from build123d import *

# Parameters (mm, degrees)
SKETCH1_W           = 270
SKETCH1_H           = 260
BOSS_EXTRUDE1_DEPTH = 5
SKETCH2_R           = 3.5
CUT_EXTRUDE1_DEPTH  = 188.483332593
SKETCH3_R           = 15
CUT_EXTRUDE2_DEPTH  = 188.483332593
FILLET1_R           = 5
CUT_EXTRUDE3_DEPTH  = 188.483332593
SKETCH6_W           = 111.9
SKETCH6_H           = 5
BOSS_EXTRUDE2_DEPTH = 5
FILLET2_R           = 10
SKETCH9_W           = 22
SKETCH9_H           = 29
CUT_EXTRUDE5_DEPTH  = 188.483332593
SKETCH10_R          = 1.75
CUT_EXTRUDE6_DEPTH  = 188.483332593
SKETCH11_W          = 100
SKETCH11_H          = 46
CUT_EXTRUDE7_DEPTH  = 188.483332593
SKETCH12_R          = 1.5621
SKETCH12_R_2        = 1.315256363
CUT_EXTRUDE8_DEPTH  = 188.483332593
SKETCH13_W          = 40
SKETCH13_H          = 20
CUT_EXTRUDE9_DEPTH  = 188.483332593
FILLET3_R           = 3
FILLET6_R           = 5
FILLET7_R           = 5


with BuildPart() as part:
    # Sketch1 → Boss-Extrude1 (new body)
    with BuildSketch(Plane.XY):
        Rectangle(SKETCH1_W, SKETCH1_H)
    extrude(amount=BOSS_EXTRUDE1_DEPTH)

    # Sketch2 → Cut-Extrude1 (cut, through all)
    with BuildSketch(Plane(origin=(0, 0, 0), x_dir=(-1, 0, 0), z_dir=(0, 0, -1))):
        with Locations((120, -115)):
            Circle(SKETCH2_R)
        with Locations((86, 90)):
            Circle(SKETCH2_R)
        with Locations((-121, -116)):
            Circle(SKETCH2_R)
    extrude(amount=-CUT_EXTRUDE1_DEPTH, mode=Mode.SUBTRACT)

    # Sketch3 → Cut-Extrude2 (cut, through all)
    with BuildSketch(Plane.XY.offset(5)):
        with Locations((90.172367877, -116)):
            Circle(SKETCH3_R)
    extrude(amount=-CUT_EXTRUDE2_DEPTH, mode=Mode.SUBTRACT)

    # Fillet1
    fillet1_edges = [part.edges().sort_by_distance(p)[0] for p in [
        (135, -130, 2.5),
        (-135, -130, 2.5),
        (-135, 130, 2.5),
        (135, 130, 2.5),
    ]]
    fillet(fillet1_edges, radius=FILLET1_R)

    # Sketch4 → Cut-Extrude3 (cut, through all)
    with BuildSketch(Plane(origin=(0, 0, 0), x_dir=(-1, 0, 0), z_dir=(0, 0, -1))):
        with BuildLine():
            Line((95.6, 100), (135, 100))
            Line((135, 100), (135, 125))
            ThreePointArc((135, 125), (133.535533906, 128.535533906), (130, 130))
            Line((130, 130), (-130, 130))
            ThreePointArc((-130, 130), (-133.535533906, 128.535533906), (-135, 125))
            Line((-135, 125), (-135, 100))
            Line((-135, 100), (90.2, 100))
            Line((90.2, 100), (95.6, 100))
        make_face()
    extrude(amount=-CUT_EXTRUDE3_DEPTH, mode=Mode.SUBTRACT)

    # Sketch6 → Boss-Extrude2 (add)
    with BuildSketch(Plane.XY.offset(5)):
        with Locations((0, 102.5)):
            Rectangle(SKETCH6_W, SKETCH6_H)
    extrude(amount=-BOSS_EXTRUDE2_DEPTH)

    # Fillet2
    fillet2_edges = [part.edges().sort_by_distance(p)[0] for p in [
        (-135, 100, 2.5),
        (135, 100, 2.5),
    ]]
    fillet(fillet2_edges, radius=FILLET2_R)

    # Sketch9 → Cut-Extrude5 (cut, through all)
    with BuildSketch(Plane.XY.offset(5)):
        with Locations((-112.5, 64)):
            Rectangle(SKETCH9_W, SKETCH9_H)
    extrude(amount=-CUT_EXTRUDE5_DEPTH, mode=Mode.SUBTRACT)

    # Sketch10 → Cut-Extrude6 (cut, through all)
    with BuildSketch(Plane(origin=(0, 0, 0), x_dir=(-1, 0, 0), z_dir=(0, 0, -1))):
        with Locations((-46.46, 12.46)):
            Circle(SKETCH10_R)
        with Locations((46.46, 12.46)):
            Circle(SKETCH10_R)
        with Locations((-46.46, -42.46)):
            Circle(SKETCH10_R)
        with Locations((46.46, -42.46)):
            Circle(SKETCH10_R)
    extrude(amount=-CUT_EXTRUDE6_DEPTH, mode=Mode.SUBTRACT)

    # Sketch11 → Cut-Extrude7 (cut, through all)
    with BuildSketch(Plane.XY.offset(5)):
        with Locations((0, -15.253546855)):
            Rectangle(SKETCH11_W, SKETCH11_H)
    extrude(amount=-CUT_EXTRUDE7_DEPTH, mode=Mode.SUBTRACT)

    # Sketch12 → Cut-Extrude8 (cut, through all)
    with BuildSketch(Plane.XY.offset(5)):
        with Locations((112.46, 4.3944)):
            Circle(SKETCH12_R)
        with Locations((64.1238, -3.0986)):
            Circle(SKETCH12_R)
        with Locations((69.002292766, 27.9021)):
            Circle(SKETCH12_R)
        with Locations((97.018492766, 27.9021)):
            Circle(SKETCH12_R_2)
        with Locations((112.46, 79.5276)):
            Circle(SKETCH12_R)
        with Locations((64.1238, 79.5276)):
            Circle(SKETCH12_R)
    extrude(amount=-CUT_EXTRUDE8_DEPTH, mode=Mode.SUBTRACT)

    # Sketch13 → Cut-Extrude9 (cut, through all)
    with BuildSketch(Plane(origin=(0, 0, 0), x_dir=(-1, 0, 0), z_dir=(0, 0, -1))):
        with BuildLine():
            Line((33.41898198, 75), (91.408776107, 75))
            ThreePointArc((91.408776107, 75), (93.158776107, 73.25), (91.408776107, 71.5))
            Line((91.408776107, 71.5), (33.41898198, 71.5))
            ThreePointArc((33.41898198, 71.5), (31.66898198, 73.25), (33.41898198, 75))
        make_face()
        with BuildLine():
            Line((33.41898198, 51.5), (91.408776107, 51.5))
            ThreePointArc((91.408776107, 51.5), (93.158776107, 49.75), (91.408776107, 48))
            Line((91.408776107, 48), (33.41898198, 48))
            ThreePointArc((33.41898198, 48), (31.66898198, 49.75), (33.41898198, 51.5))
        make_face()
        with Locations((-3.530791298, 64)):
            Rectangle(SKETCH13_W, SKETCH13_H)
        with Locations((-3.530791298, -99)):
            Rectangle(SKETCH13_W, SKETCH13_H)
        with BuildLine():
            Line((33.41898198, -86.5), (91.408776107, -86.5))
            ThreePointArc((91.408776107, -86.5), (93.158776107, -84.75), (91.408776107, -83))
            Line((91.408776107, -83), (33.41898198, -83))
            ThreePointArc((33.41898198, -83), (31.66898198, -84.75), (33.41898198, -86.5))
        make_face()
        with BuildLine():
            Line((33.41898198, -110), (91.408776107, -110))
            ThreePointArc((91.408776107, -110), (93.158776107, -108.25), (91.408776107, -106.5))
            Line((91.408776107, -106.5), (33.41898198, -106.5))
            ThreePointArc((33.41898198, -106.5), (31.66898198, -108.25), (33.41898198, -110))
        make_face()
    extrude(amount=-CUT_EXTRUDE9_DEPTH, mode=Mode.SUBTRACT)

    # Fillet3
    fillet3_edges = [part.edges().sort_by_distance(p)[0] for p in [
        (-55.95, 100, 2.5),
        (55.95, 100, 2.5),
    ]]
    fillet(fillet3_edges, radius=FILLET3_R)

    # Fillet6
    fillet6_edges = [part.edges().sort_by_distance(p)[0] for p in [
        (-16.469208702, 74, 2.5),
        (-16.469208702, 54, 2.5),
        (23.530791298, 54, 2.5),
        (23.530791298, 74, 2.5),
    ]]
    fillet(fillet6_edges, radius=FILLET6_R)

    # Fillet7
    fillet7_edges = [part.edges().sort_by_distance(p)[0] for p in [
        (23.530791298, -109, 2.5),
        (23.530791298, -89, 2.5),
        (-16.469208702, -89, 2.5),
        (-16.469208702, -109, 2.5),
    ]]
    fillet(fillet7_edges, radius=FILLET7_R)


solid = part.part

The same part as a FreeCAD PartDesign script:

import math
import FreeCAD as App
import Part
import Sketcher

V = App.Vector


def edges_at(feature, points):
    """Names of the edges that pass closest to the given points."""
    edges = feature.Shape.Edges
    near = lambda p: min(range(len(edges)), key=lambda i: edges[i].distToShape(Part.Vertex(*p))[0])
    return sorted({f"Edge{near(p) + 1}" for p in points})

doc = App.newDocument("Part")
body = doc.addObject("PartDesign::Body", "Body")

# Sketch on XY plane
sketch1 = body.newObject("Sketcher::SketchObject", "Sketch")
sketch1.AttachmentSupport = (doc.getObject("XY_Plane"), [""])
sketch1.MapMode = "FlatFace"
sketch1.addGeometry(Part.LineSegment(V(-135, 130, 0), V(-135, -130, 0)), False)
sketch1.addGeometry(Part.LineSegment(V(-135, -130, 0), V(135, -130, 0)), False)
sketch1.addGeometry(Part.LineSegment(V(135, -130, 0), V(135, 130, 0)), False)
sketch1.addGeometry(Part.LineSegment(V(135, 130, 0), V(-135, 130, 0)), False)
sketch1.addConstraint(Sketcher.Constraint("Coincident", 0, 2, 1, 1))
sketch1.addConstraint(Sketcher.Constraint("Coincident", 1, 2, 2, 1))
sketch1.addConstraint(Sketcher.Constraint("Coincident", 2, 2, 3, 1))
sketch1.addConstraint(Sketcher.Constraint("Coincident", 3, 2, 0, 1))
sketch1.addConstraint(Sketcher.Constraint("Vertical", 0))
sketch1.addConstraint(Sketcher.Constraint("Horizontal", 1))
sketch1.addConstraint(Sketcher.Constraint("Vertical", 2))
sketch1.addConstraint(Sketcher.Constraint("Horizontal", 3))
sketch1.addConstraint(Sketcher.Constraint("Symmetric", 0, 2, 2, 2, -1, 1))
sketch1.addConstraint(Sketcher.Constraint("DistanceX", 1, 1, 1, 2, 270.0))
sketch1.addConstraint(Sketcher.Constraint("DistanceY", 0, 2, 0, 1, 260.0))
pad1 = body.newObject("PartDesign::Pad", "Pad")
pad1.Profile = sketch1
pad1.Length = 5

# Sketch on XY plane
sketch2 = body.newObject("Sketcher::SketchObject", "Sketch001")
sketch2.AttachmentSupport = (doc.getObject("XY_Plane"), [""])
sketch2.MapMode = "FlatFace"
sketch2.addGeometry(Part.Circle(V(-120, -115, 0), V(0, 0, 1), 3.5), False)
sketch2.addGeometry(Part.Circle(V(-86, 90, 0), V(0, 0, 1), 3.5), False)
sketch2.addGeometry(Part.Circle(V(121, -116, 0), V(0, 0, 1), 3.5), False)
sketch2.addConstraint(Sketcher.Constraint("Equal", 0, 1))
sketch2.addConstraint(Sketcher.Constraint("Equal", 1, 2))
sketch2.addConstraint(Sketcher.Constraint("Diameter", 0, 7.0))
sketch2.addConstraint(Sketcher.Constraint("DistanceX", 0, 3, -1, 1, 120.0))
sketch2.addConstraint(Sketcher.Constraint("DistanceY", 0, 3, -1, 1, 115.0))
sketch2.addConstraint(Sketcher.Constraint("DistanceX", 1, 3, -1, 1, 86.0))
sketch2.addConstraint(Sketcher.Constraint("DistanceY", -1, 1, 1, 3, 90.0))
sketch2.addConstraint(Sketcher.Constraint("DistanceX", -1, 1, 2, 3, 121.0))
sketch2.addConstraint(Sketcher.Constraint("DistanceY", 2, 3, -1, 1, 116.0))
pocket1 = body.newObject("PartDesign::Pocket", "Pocket")
pocket1.Profile = sketch2
pocket1.Type = "ThroughAll"
pocket1.Reversed = True

# Sketch on XY plane
sketch3 = body.newObject("Sketcher::SketchObject", "Sketch002")
sketch3.AttachmentSupport = (doc.getObject("XY_Plane"), [""])
sketch3.MapMode = "FlatFace"
sketch3.AttachmentOffset = App.Placement(V(0, 0, 5), App.Rotation())
sketch3.addGeometry(Part.Circle(V(90, -116, 0), V(0, 0, 1), 15), False)
sketch3.addConstraint(Sketcher.Constraint("Diameter", 0, 30.0))
sketch3.addConstraint(Sketcher.Constraint("DistanceY", 0, 3, -1, 1, 116.0))
sketch3.addConstraint(Sketcher.Constraint("DistanceX", -1, 1, 0, 3, 90.172368))
pocket2 = body.newObject("PartDesign::Pocket", "Pocket001")
pocket2.Profile = sketch3
pocket2.Type = "ThroughAll"
doc.recompute()

fillet = body.newObject("PartDesign::Fillet", "Fillet")
fillet.Base = (pocket2, edges_at(pocket2, [
    (135, -130, 2.5),
    (-135, -130, 2.5),
    (-135, 130, 2.5),
    (135, 130, 2.5),
]))
fillet.Radius = 5

# Sketch on XY plane
sketch4 = body.newObject("Sketcher::SketchObject", "Sketch003")
sketch4.AttachmentSupport = (doc.getObject("XY_Plane"), [""])
sketch4.MapMode = "FlatFace"
sketch4.addGeometry(Part.LineSegment(V(-135, 100, 0), V(-135, 125, 0)), False)
sketch4.addGeometry(Part.ArcOfCircle(Part.Circle(V(-130, 125, 0), V(0, 0, 1), 5), math.radians(90), math.radians(180)), False)
sketch4.addGeometry(Part.LineSegment(V(-130, 130, 0), V(130, 130, 0)), False)
sketch4.addGeometry(Part.ArcOfCircle(Part.Circle(V(130, 125, 0), V(0, 0, 1), 5), math.radians(0), math.radians(90)), False)
sketch4.addGeometry(Part.LineSegment(V(135, 125, 0), V(135, 100, 0)), False)
sketch4.addGeometry(Part.LineSegment(V(135, 100, 0), V(-135, 100, 0)), False)
sketch4.addConstraint(Sketcher.Constraint("Tangent", 0, 2, 1, 2))
sketch4.addConstraint(Sketcher.Constraint("Tangent", 1, 1, 2, 1))
sketch4.addConstraint(Sketcher.Constraint("Tangent", 2, 2, 3, 2))
sketch4.addConstraint(Sketcher.Constraint("Tangent", 3, 1, 4, 1))
sketch4.addConstraint(Sketcher.Constraint("Coincident", 4, 2, 5, 1))
sketch4.addConstraint(Sketcher.Constraint("Coincident", 5, 2, 0, 1))
sketch4.addConstraint(Sketcher.Constraint("Vertical", 0))
sketch4.addConstraint(Sketcher.Constraint("Horizontal", 2))
sketch4.addConstraint(Sketcher.Constraint("Vertical", 4))
sketch4.addConstraint(Sketcher.Constraint("Horizontal", 5))
sketch4.addConstraint(Sketcher.Constraint("Equal", 1, 3))
sketch4.addConstraint(Sketcher.Constraint("Radius", 1, 5.0))
sketch4.addConstraint(Sketcher.Constraint("DistanceX", 2, 1, 2, 2, 260.0))
sketch4.addConstraint(Sketcher.Constraint("DistanceY", 0, 1, 0, 2, 25.0))
sketch4.addConstraint(Sketcher.Constraint("DistanceX", 1, 3, -1, 1, 130.0))
sketch4.addConstraint(Sketcher.Constraint("DistanceY", -1, 1, 1, 3, 125.0))
pocket3 = body.newObject("PartDesign::Pocket", "Pocket002")
pocket3.Profile = sketch4
pocket3.Type = "ThroughAll"
pocket3.Reversed = True

# Sketch on XY plane
sketch5 = body.newObject("Sketcher::SketchObject", "Sketch004")
sketch5.AttachmentSupport = (doc.getObject("XY_Plane"), [""])
sketch5.MapMode = "FlatFace"
sketch5.AttachmentOffset = App.Placement(V(0, 0, 5), App.Rotation())
sketch5.addGeometry(Part.LineSegment(V(-56, 105, 0), V(-56, 100, 0)), False)
sketch5.addGeometry(Part.LineSegment(V(-56, 100, 0), V(56, 100, 0)), False)
sketch5.addGeometry(Part.LineSegment(V(56, 100, 0), V(56, 105, 0)), False)
sketch5.addGeometry(Part.LineSegment(V(56, 105, 0), V(-56, 105, 0)), False)
sketch5.addConstraint(Sketcher.Constraint("Coincident", 0, 2, 1, 1))
sketch5.addConstraint(Sketcher.Constraint("Coincident", 1, 2, 2, 1))
sketch5.addConstraint(Sketcher.Constraint("Coincident", 2, 2, 3, 1))
sketch5.addConstraint(Sketcher.Constraint("Coincident", 3, 2, 0, 1))
sketch5.addConstraint(Sketcher.Constraint("Vertical", 0))
sketch5.addConstraint(Sketcher.Constraint("Horizontal", 1))
sketch5.addConstraint(Sketcher.Constraint("Vertical", 2))
sketch5.addConstraint(Sketcher.Constraint("Horizontal", 3))
sketch5.addConstraint(Sketcher.Constraint("DistanceY", 0, 2, 0, 1, 5.0))
sketch5.addConstraint(Sketcher.Constraint("DistanceX", 1, 1, 1, 2, 111.9))
sketch5.addConstraint(Sketcher.Constraint("DistanceY", -1, 1, 0, 2, 100.0))
sketch5.addConstraint(Sketcher.Constraint("DistanceX", 0, 2, -1, 1, 55.95))
pad2 = body.newObject("PartDesign::Pad", "Pad001")
pad2.Profile = sketch5
pad2.Length = 5
pad2.Reversed = True
doc.recompute()

fillet2 = body.newObject("PartDesign::Fillet", "Fillet001")
fillet2.Base = (pad2, edges_at(pad2, [(-135, 100, 2.5), (135, 100, 2.5)]))
fillet2.Radius = 10

# Sketch on XY plane
sketch6 = body.newObject("Sketcher::SketchObject", "Sketch005")
sketch6.AttachmentSupport = (doc.getObject("XY_Plane"), [""])
sketch6.MapMode = "FlatFace"
sketch6.AttachmentOffset = App.Placement(V(0, 0, 5), App.Rotation())
sketch6.addGeometry(Part.LineSegment(V(-124, 78, 0), V(-124, 50, 0)), False)
sketch6.addGeometry(Part.LineSegment(V(-124, 50, 0), V(-102, 50, 0)), False)
sketch6.addGeometry(Part.LineSegment(V(-102, 50, 0), V(-102, 78, 0)), False)
sketch6.addGeometry(Part.LineSegment(V(-102, 78, 0), V(-124, 78, 0)), False)
sketch6.addConstraint(Sketcher.Constraint("Coincident", 0, 2, 1, 1))
sketch6.addConstraint(Sketcher.Constraint("Coincident", 1, 2, 2, 1))
sketch6.addConstraint(Sketcher.Constraint("Coincident", 2, 2, 3, 1))
sketch6.addConstraint(Sketcher.Constraint("Coincident", 3, 2, 0, 1))
sketch6.addConstraint(Sketcher.Constraint("Vertical", 0))
sketch6.addConstraint(Sketcher.Constraint("Horizontal", 1))
sketch6.addConstraint(Sketcher.Constraint("Vertical", 2))
sketch6.addConstraint(Sketcher.Constraint("Horizontal", 3))
sketch6.addConstraint(Sketcher.Constraint("DistanceX", 1, 1, 1, 2, 22.0))
sketch6.addConstraint(Sketcher.Constraint("DistanceY", 0, 2, 0, 1, 29.0))
sketch6.addConstraint(Sketcher.Constraint("DistanceX", 0, 2, -1, 1, 123.5))
sketch6.addConstraint(Sketcher.Constraint("DistanceY", -1, 1, 0, 2, 49.5))
pocket4 = body.newObject("PartDesign::Pocket", "Pocket003")
pocket4.Profile = sketch6
pocket4.Type = "ThroughAll"

# Sketch on XY plane
sketch7 = body.newObject("Sketcher::SketchObject", "Sketch006")
sketch7.AttachmentSupport = (doc.getObject("XY_Plane"), [""])
sketch7.MapMode = "FlatFace"
sketch7.addGeometry(Part.Circle(V(46.5, 12.5, 0), V(0, 0, 1), 1.8), False)
sketch7.addGeometry(Part.Circle(V(-46.5, 12.5, 0), V(0, 0, 1), 1.8), False)
sketch7.addGeometry(Part.Circle(V(46.5, -42.5, 0), V(0, 0, 1), 1.8), False)
sketch7.addGeometry(Part.Circle(V(-46.5, -42.5, 0), V(0, 0, 1), 1.8), False)
sketch7.addConstraint(Sketcher.Constraint("Equal", 0, 1))
sketch7.addConstraint(Sketcher.Constraint("Equal", 1, 2))
sketch7.addConstraint(Sketcher.Constraint("Equal", 2, 3))
sketch7.addConstraint(Sketcher.Constraint("Symmetric", 0, 3, 1, 3, -2))
sketch7.addConstraint(Sketcher.Constraint("Symmetric", 2, 3, 3, 3, -2))
sketch7.addConstraint(Sketcher.Constraint("Vertical", 0, 3, 2, 3))
sketch7.addConstraint(Sketcher.Constraint("Diameter", 0, 3.5))
sketch7.addConstraint(Sketcher.Constraint("DistanceX", -1, 1, 0, 3, 46.46))
sketch7.addConstraint(Sketcher.Constraint("DistanceY", -1, 1, 0, 3, 12.46))
sketch7.addConstraint(Sketcher.Constraint("DistanceY", 2, 3, -1, 1, 42.46))
pocket5 = body.newObject("PartDesign::Pocket", "Pocket004")
pocket5.Profile = sketch7
pocket5.Type = "ThroughAll"
pocket5.Reversed = True

# Sketch on XY plane
sketch8 = body.newObject("Sketcher::SketchObject", "Sketch007")
sketch8.AttachmentSupport = (doc.getObject("XY_Plane"), [""])
sketch8.MapMode = "FlatFace"
sketch8.AttachmentOffset = App.Placement(V(0, 0, 5), App.Rotation())
sketch8.addGeometry(Part.LineSegment(V(-50, 8, 0), V(-50, -38, 0)), False)
sketch8.addGeometry(Part.LineSegment(V(-50, -38, 0), V(50, -38, 0)), False)
sketch8.addGeometry(Part.LineSegment(V(50, -38, 0), V(50, 8, 0)), False)
sketch8.addGeometry(Part.LineSegment(V(50, 8, 0), V(-50, 8, 0)), False)
sketch8.addConstraint(Sketcher.Constraint("Coincident", 0, 2, 1, 1))
sketch8.addConstraint(Sketcher.Constraint("Coincident", 1, 2, 2, 1))
sketch8.addConstraint(Sketcher.Constraint("Coincident", 2, 2, 3, 1))
sketch8.addConstraint(Sketcher.Constraint("Coincident", 3, 2, 0, 1))
sketch8.addConstraint(Sketcher.Constraint("Vertical", 0))
sketch8.addConstraint(Sketcher.Constraint("Horizontal", 1))
sketch8.addConstraint(Sketcher.Constraint("Vertical", 2))
sketch8.addConstraint(Sketcher.Constraint("Horizontal", 3))
sketch8.addConstraint(Sketcher.Constraint("DistanceX", 1, 1, 1, 2, 100.0))
sketch8.addConstraint(Sketcher.Constraint("DistanceY", 0, 2, 0, 1, 46.0))
sketch8.addConstraint(Sketcher.Constraint("DistanceX", 0, 2, -1, 1, 50.0))
sketch8.addConstraint(Sketcher.Constraint("DistanceY", 0, 2, -1, 1, 38.253547))
pocket6 = body.newObject("PartDesign::Pocket", "Pocket005")
pocket6.Profile = sketch8
pocket6.Type = "ThroughAll"

# Sketch on XY plane
sketch9 = body.newObject("Sketcher::SketchObject", "Sketch008")
sketch9.AttachmentSupport = (doc.getObject("XY_Plane"), [""])
sketch9.MapMode = "FlatFace"
sketch9.AttachmentOffset = App.Placement(V(0, 0, 5), App.Rotation())
sketch9.addGeometry(Part.Circle(V(112.5, 4.4, 0), V(0, 0, 1), 1.6), False)
sketch9.addGeometry(Part.Circle(V(64.1, -3.1, 0), V(0, 0, 1), 1.6), False)
sketch9.addGeometry(Part.Circle(V(69, 27.9, 0), V(0, 0, 1), 1.6), False)
sketch9.addGeometry(Part.Circle(V(97, 27.9, 0), V(0, 0, 1), 1.3), False)
sketch9.addGeometry(Part.Circle(V(112.5, 79.5, 0), V(0, 0, 1), 1.6), False)
sketch9.addGeometry(Part.Circle(V(64.1, 79.5, 0), V(0, 0, 1), 1.6), False)
sketch9.addConstraint(Sketcher.Constraint("Equal", 0, 1))
sketch9.addConstraint(Sketcher.Constraint("Equal", 1, 2))
sketch9.addConstraint(Sketcher.Constraint("Equal", 2, 4))
sketch9.addConstraint(Sketcher.Constraint("Equal", 4, 5))
sketch9.addConstraint(Sketcher.Constraint("Horizontal", 2, 3, 3, 3))
sketch9.addConstraint(Sketcher.Constraint("Horizontal", 4, 3, 5, 3))
sketch9.addConstraint(Sketcher.Constraint("Vertical", 0, 3, 4, 3))
sketch9.addConstraint(Sketcher.Constraint("Vertical", 1, 3, 5, 3))
sketch9.addConstraint(Sketcher.Constraint("Diameter", 0, 3.1242))
sketch9.addConstraint(Sketcher.Constraint("DistanceX", -1, 1, 0, 3, 112.46))
sketch9.addConstraint(Sketcher.Constraint("Diameter", 3, 2.630513))
sketch9.addConstraint(Sketcher.Constraint("DistanceY", 1, 3, 0, 3, 7.493))
sketch9.addConstraint(Sketcher.Constraint("DistanceY", -1, 1, 0, 3, 4.3944))
sketch9.addConstraint(Sketcher.Constraint("DistanceX", -1, 1, 1, 3, 64.1238))
sketch9.addConstraint(Sketcher.Constraint("DistanceY", -1, 1, 2, 3, 27.9021))
sketch9.addConstraint(Sketcher.Constraint("DistanceY", -1, 1, 4, 3, 79.5276))
sketch9.addConstraint(Sketcher.Constraint("DistanceX", 2, 3, 3, 3, 28.0162))
sketch9.addConstraint(Sketcher.Constraint("DistanceX", -1, 1, 2, 3, 69.002293))
pocket7 = body.newObject("PartDesign::Pocket", "Pocket006")
pocket7.Profile = sketch9
pocket7.Type = "ThroughAll"

# Sketch on XY plane
sketch10 = body.newObject("Sketcher::SketchObject", "Sketch009")
sketch10.AttachmentSupport = (doc.getObject("XY_Plane"), [""])
sketch10.MapMode = "FlatFace"
sketch10.addGeometry(Part.LineSegment(V(-91.4, 75, 0), V(-33.4, 75, 0)), False)
sketch10.addGeometry(Part.ArcOfCircle(Part.Circle(V(-33.4, 73.2, 0), V(0, 0, 1), 1.8), math.radians(-90), math.radians(90)), False)
sketch10.addGeometry(Part.LineSegment(V(-33.4, 71.5, 0), V(-91.4, 71.5, 0)), False)
sketch10.addGeometry(Part.ArcOfCircle(Part.Circle(V(-91.4, 73.2, 0), V(0, 0, 1), 1.8), math.radians(90), math.radians(270)), False)
sketch10.addGeometry(Part.LineSegment(V(-91.4, 51.5, 0), V(-33.4, 51.5, 0)), False)
sketch10.addGeometry(Part.ArcOfCircle(Part.Circle(V(-33.4, 49.8, 0), V(0, 0, 1), 1.8), math.radians(-90), math.radians(90)), False)
sketch10.addGeometry(Part.LineSegment(V(-33.4, 48, 0), V(-91.4, 48, 0)), False)
sketch10.addGeometry(Part.ArcOfCircle(Part.Circle(V(-91.4, 49.8, 0), V(0, 0, 1), 1.8), math.radians(90), math.radians(270)), False)
sketch10.addGeometry(Part.LineSegment(V(23.5, 74, 0), V(23.5, 54, 0)), False)
sketch10.addGeometry(Part.LineSegment(V(23.5, 54, 0), V(-16.5, 54, 0)), False)
sketch10.addGeometry(Part.LineSegment(V(-16.5, 54, 0), V(-16.5, 74, 0)), False)
sketch10.addGeometry(Part.LineSegment(V(-16.5, 74, 0), V(23.5, 74, 0)), False)
sketch10.addGeometry(Part.LineSegment(V(23.5, -89, 0), V(23.5, -109, 0)), False)
sketch10.addGeometry(Part.LineSegment(V(23.5, -109, 0), V(-16.5, -109, 0)), False)
sketch10.addGeometry(Part.LineSegment(V(-16.5, -109, 0), V(-16.5, -89, 0)), False)
sketch10.addGeometry(Part.LineSegment(V(-16.5, -89, 0), V(23.5, -89, 0)), False)
sketch10.addGeometry(Part.LineSegment(V(-33.4, -86.5, 0), V(-91.4, -86.5, 0)), False)
sketch10.addGeometry(Part.ArcOfCircle(Part.Circle(V(-91.4, -84.8, 0), V(0, 0, 1), 1.8), math.radians(90), math.radians(270)), False)
sketch10.addGeometry(Part.LineSegment(V(-91.4, -83, 0), V(-33.4, -83, 0)), False)
sketch10.addGeometry(Part.ArcOfCircle(Part.Circle(V(-33.4, -84.8, 0), V(0, 0, 1), 1.8), math.radians(-90), math.radians(90)), False)
sketch10.addGeometry(Part.LineSegment(V(-33.4, -110, 0), V(-91.4, -110, 0)), False)
sketch10.addGeometry(Part.ArcOfCircle(Part.Circle(V(-91.4, -108.2, 0), V(0, 0, 1), 1.8), math.radians(90), math.radians(270)), False)
sketch10.addGeometry(Part.LineSegment(V(-91.4, -106.5, 0), V(-33.4, -106.5, 0)), False)
sketch10.addGeometry(Part.ArcOfCircle(Part.Circle(V(-33.4, -108.2, 0), V(0, 0, 1), 1.8), math.radians(-90), math.radians(90)), False)
sketch10.addConstraint(Sketcher.Constraint("Tangent", 0, 2, 1, 2))
sketch10.addConstraint(Sketcher.Constraint("Tangent", 1, 1, 2, 1))
sketch10.addConstraint(Sketcher.Constraint("Tangent", 2, 2, 3, 2))
sketch10.addConstraint(Sketcher.Constraint("Tangent", 3, 1, 0, 1))
sketch10.addConstraint(Sketcher.Constraint("Tangent", 4, 2, 5, 2))
sketch10.addConstraint(Sketcher.Constraint("Tangent", 5, 1, 6, 1))
sketch10.addConstraint(Sketcher.Constraint("Tangent", 6, 2, 7, 2))
sketch10.addConstraint(Sketcher.Constraint("Tangent", 7, 1, 4, 1))
sketch10.addConstraint(Sketcher.Constraint("Coincident", 8, 2, 9, 1))
sketch10.addConstraint(Sketcher.Constraint("Coincident", 9, 2, 10, 1))
sketch10.addConstraint(Sketcher.Constraint("Coincident", 10, 2, 11, 1))
sketch10.addConstraint(Sketcher.Constraint("Coincident", 11, 2, 8, 1))
sketch10.addConstraint(Sketcher.Constraint("Coincident", 12, 2, 13, 1))
sketch10.addConstraint(Sketcher.Constraint("Coincident", 13, 2, 14, 1))
sketch10.addConstraint(Sketcher.Constraint("Coincident", 14, 2, 15, 1))
sketch10.addConstraint(Sketcher.Constraint("Coincident", 15, 2, 12, 1))
sketch10.addConstraint(Sketcher.Constraint("Tangent", 16, 2, 17, 2))
sketch10.addConstraint(Sketcher.Constraint("Tangent", 17, 1, 18, 1))
sketch10.addConstraint(Sketcher.Constraint("Tangent", 18, 2, 19, 2))
sketch10.addConstraint(Sketcher.Constraint("Tangent", 19, 1, 16, 1))
sketch10.addConstraint(Sketcher.Constraint("Tangent", 20, 2, 21, 2))
sketch10.addConstraint(Sketcher.Constraint("Tangent", 21, 1, 22, 1))
sketch10.addConstraint(Sketcher.Constraint("Tangent", 22, 2, 23, 2))
sketch10.addConstraint(Sketcher.Constraint("Tangent", 23, 1, 20, 1))
sketch10.addConstraint(Sketcher.Constraint("Horizontal", 0))
sketch10.addConstraint(Sketcher.Constraint("Horizontal", 2))
sketch10.addConstraint(Sketcher.Constraint("Horizontal", 4))
sketch10.addConstraint(Sketcher.Constraint("Horizontal", 6))
sketch10.addConstraint(Sketcher.Constraint("Vertical", 8))
sketch10.addConstraint(Sketcher.Constraint("Horizontal", 9))
sketch10.addConstraint(Sketcher.Constraint("Vertical", 10))
sketch10.addConstraint(Sketcher.Constraint("Horizontal", 11))
sketch10.addConstraint(Sketcher.Constraint("Vertical", 12))
sketch10.addConstraint(Sketcher.Constraint("Horizontal", 13))
sketch10.addConstraint(Sketcher.Constraint("Vertical", 14))
sketch10.addConstraint(Sketcher.Constraint("Horizontal", 15))
sketch10.addConstraint(Sketcher.Constraint("Horizontal", 16))
sketch10.addConstraint(Sketcher.Constraint("Horizontal", 18))
sketch10.addConstraint(Sketcher.Constraint("Horizontal", 20))
sketch10.addConstraint(Sketcher.Constraint("Horizontal", 22))
sketch10.addConstraint(Sketcher.Constraint("Equal", 3, 5))
sketch10.addConstraint(Sketcher.Constraint("Equal", 7, 17))
sketch10.addConstraint(Sketcher.Constraint("Equal", 19, 21))
sketch10.addConstraint(Sketcher.Constraint("Vertical", 1, 3, 5, 3))
sketch10.addConstraint(Sketcher.Constraint("Vertical", 3, 3, 7, 3))
sketch10.addConstraint(Sketcher.Constraint("Vertical", 7, 3, 17, 3))
sketch10.addConstraint(Sketcher.Constraint("Vertical", 5, 3, 19, 3))
sketch10.addConstraint(Sketcher.Constraint("Vertical", 17, 3, 21, 3))
sketch10.addConstraint(Sketcher.Constraint("Vertical", 19, 3, 23, 3))
sketch10.addConstraint(Sketcher.Constraint("Vertical", 11, 2, 12, 2))
sketch10.addConstraint(Sketcher.Constraint("Vertical", 10, 2, 13, 2))
sketch10.addConstraint(Sketcher.Constraint("Equal", 10, 12))
sketch10.addConstraint(Sketcher.Constraint("DistanceX", 9, 2, 9, 1, 40.0))
sketch10.addConstraint(Sketcher.Constraint("DistanceY", 8, 2, 8, 1, 20.0))
sketch10.addConstraint(Sketcher.Constraint("Radius", 1, 1.75))
sketch10.addConstraint(Sketcher.Constraint("DistanceY", -1, 1, 0, 2, 75.0))
sketch10.addConstraint(Sketcher.Constraint("DistanceY", -1, 1, 5, 1, 48.0))
sketch10.addConstraint(Sketcher.Constraint("DistanceY", -1, 1, 8, 2, 54.0))
sketch10.addConstraint(Sketcher.Constraint("DistanceY", 12, 2, -1, 1, 109.0))
sketch10.addConstraint(Sketcher.Constraint("DistanceY", 17, 1, -1, 1, 83.0))
sketch10.addConstraint(Sketcher.Constraint("DistanceY", 20, 2, -1, 1, 110.0))
sketch10.addConstraint(Sketcher.Constraint("DistanceX", 0, 1, 0, 2, 57.989794))
sketch10.addConstraint(Sketcher.Constraint("DistanceX", 1, 3, -1, 1, 33.418982))
sketch10.addConstraint(Sketcher.Constraint("DistanceX", -1, 1, 8, 2, 23.530791))
pocket8 = body.newObject("PartDesign::Pocket", "Pocket007")
pocket8.Profile = sketch10
pocket8.Type = "ThroughAll"
pocket8.Reversed = True
doc.recompute()

fillet3 = body.newObject("PartDesign::Fillet", "Fillet002")
fillet3.Base = (pocket8, edges_at(pocket8, [(-55.95, 100, 2.5), (55.95, 100, 2.5)]))
fillet3.Radius = 3
doc.recompute()

fillet4 = body.newObject("PartDesign::Fillet", "Fillet003")
fillet4.Base = (fillet3, edges_at(fillet3, [
    (-16.469, 74, 2.5),
    (-16.469, 54, 2.5),
    (23.531, 54, 2.5),
    (23.531, 74, 2.5),
]))
fillet4.Radius = 5
doc.recompute()

fillet5 = body.newObject("PartDesign::Fillet", "Fillet004")
fillet5.Base = (fillet4, edges_at(fillet4, [
    (23.531, -109, 2.5),
    (23.531, -89, 2.5),
    (-16.469, -89, 2.5),
    (-16.469, -109, 2.5),
]))
fillet5.Radius = 5

doc.recompute()
